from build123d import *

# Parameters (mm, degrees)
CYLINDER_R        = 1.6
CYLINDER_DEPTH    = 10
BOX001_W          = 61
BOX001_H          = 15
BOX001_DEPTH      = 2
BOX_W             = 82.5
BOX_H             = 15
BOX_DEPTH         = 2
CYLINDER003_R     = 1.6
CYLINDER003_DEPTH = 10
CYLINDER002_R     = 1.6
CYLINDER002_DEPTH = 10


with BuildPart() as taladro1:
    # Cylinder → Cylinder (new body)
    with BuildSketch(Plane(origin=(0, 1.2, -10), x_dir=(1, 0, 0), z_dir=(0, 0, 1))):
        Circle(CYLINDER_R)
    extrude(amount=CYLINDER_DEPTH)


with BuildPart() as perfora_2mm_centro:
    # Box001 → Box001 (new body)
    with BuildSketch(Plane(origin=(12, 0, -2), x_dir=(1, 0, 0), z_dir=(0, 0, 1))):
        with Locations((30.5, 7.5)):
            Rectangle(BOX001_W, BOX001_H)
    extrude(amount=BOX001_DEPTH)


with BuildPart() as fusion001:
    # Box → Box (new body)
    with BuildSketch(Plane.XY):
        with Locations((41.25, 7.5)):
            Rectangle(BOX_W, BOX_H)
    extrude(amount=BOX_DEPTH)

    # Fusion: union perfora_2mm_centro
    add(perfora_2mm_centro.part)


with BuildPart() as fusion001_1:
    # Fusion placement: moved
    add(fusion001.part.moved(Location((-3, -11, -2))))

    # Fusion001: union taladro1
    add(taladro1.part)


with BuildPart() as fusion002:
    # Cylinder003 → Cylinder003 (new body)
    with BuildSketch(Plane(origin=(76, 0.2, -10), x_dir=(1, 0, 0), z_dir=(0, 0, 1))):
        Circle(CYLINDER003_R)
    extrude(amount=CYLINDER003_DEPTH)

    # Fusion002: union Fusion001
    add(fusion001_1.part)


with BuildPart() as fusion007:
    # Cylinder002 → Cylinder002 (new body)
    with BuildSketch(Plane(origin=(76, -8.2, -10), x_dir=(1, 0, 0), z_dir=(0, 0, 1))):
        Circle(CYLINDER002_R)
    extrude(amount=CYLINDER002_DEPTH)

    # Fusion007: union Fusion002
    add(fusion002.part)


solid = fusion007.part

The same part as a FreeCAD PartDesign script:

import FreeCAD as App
import Part
import Sketcher

V = App.Vector

doc = App.newDocument("Part")
body = doc.addObject("PartDesign::Body", "Body")

sketch1 = doc.addObject("Sketcher::SketchObject", "Sketch")
body.addObject(sketch1)
sketch1.AttachmentSupport = (doc.XY_Plane, [""])
sketch1.MapMode = "FlatFace"
sketch1.AttachmentOffset = App.Placement(V(0, 0, -10), App.Rotation())
sketch1.addGeometry(Part.Circle(V(0, 1.2, 0), V(0, 0, 1), 1.6), False)
sketch1.addConstraint([
    Sketcher.Constraint("PointOnObject", 0, 3, -2),
    Sketcher.Constraint("Diameter", 0, 3.2),
    Sketcher.Constraint("DistanceY", -1, 1, 0, 3, 1.2),
])
pad1 = doc.addObject("PartDesign::Pad", "Pad")
body.addObject(pad1)
pad1.Profile = sketch1
pad1.Length = 10
body2 = doc.addObject("PartDesign::Body", "Body001")

sketch2 = doc.addObject("Sketcher::SketchObject", "Sketch001")
body2.addObject(sketch2)
sketch2.AttachmentSupport = (doc.getObject("XY_Plane001"), [""])
sketch2.MapMode = "FlatFace"
sketch2.AttachmentOffset = App.Placement(V(0, 0, -2), App.Rotation())
sketch2.addGeometry([
    Part.LineSegment(V(12, 15, 0), V(12, 0, 0)),
    Part.LineSegment(V(12, 0, 0), V(73, 0, 0)),
    Part.LineSegment(V(73, 0, 0), V(73, 15, 0)),
    Part.LineSegment(V(73, 15, 0), V(12, 15, 0)),
], False)
sketch2.addConstraint([
    Sketcher.Constraint("Coincident", 0, 2, 1, 1),
    Sketcher.Constraint("Coincident", 1, 2, 2, 1),
    Sketcher.Constraint("Coincident", 2, 2, 3, 1),
    Sketcher.Constraint("Coincident", 3, 2, 0, 1),
    Sketcher.Constraint("Vertical", 0),
    Sketcher.Constraint("Horizontal", 1),
    Sketcher.Constraint("Vertical", 2),
    Sketcher.Constraint("Horizontal", 3),
    Sketcher.Constraint("PointOnObject", 0, 2, -1),
    Sketcher.Constraint("DistanceX", 1, 1, 1, 2, 61.0),
    Sketcher.Constraint("DistanceY", 0, 2, 0, 1, 15.0),
    Sketcher.Constraint("DistanceX", -1, 1, 0, 2, 12.0),
])
pad2 = doc.addObject("PartDesign::Pad", "Pad001")
body2.addObject(pad2)
pad2.Profile = sketch2
pad2.Length = 2
body3 = doc.addObject("PartDesign::Body", "Body002")

sketch3 = doc.addObject("Sketcher::SketchObject", "Sketch002")
body3.addObject(sketch3)
sketch3.AttachmentSupport = (doc.getObject("XY_Plane002"), [""])
sketch3.MapMode = "FlatFace"
sketch3.addGeometry([
    Part.LineSegment(V(0, 15, 0), V(0, 0, 0)),
    Part.LineSegment(V(0, 0, 0), V(82, 0, 0)),
    Part.LineSegment(V(82, 0, 0), V(82, 15, 0)),
    Part.LineSegment(V(82, 15, 0), V(0, 15, 0)),
], False)
sketch3.addConstraint([
    Sketcher.Constraint("Coincident", 0, 2, 1, 1),
    Sketcher.Constraint("Coincident", 1, 2, 2, 1),
    Sketcher.Constraint("Coincident", 2, 2, 3, 1),
    Sketcher.Constraint("Coincident", 3, 2, 0, 1),
    Sketcher.Constraint("Vertical", 0),
    Sketcher.Constraint("Horizontal", 1),
    Sketcher.Constraint("Vertical", 2),
    Sketcher.Constraint("Horizontal", 3),
    Sketcher.Constraint("Coincident", 0, 2, -1, 1),
    Sketcher.Constraint("DistanceY", 0, 2, 0, 1, 15.0),
    Sketcher.Constraint("DistanceX", 1, 1, 1, 2, 82.5),
])
pad3 = doc.addObject("PartDesign::Pad", "Pad002")
body3.addObject(pad3)
pad3.Profile = sketch3
pad3.Length = 2
doc.recompute()

boolean = doc.addObject("PartDesign::Boolean", "Boolean")
body3.addObject(boolean)
boolean.Type = "Fuse"
boolean.addObjects([body2])
body4 = doc.addObject("PartDesign::Body", "Body003")
doc.recompute()

body3.Placement = App.Placement(V(-3, -11, -2), App.Rotation(V(0, 0, 1), 0))
boolean2 = doc.addObject("PartDesign::Boolean", "Boolean001")
body4.addObject(boolean2)
boolean2.Type = "Fuse"
boolean2.addObjects([body3])
doc.recompute()

boolean3 = doc.addObject("PartDesign::Boolean", "Boolean002")
body4.addObject(boolean3)
boolean3.Type = "Fuse"
boolean3.addObjects([body])
body5 = doc.addObject("PartDesign::Body", "Body004")

sketch4 = doc.addObject("Sketcher::SketchObject", "Sketch003")
body5.addObject(sketch4)
sketch4.AttachmentSupport = (doc.getObject("XY_Plane004"), [""])
sketch4.MapMode = "FlatFace"
sketch4.AttachmentOffset = App.Placement(V(0, 0, -10), App.Rotation())
sketch4.addGeometry(Part.Circle(V(76, 0.2, 0), V(0, 0, 1), 1.6), False)
sketch4.addConstraint([
    Sketcher.Constraint("Diameter", 0, 3.2),
    Sketcher.Constraint("DistanceX", -1, 1, 0, 3, 76.0),
    Sketcher.Constraint("DistanceY", -1, 1, 0, 3, 0.2),
])
pad4 = doc.addObject("PartDesign::Pad", "Pad003")
body5.addObject(pad4)
pad4.Profile = sketch4
pad4.Length = 10
doc.recompute()

boolean4 = doc.addObject("PartDesign::Boolean", "Boolean003")
body5.addObject(boolean4)
boolean4.Type = "Fuse"
boolean4.addObjects([body4])
body6 = doc.addObject("PartDesign::Body", "Body005")

sketch5 = doc.addObject("Sketcher::SketchObject", "Sketch004")
body6.addObject(sketch5)
sketch5.AttachmentSupport = (doc.getObject("XY_Plane005"), [""])
sketch5.MapMode = "FlatFace"
sketch5.AttachmentOffset = App.Placement(V(0, 0, -10), App.Rotation())
sketch5.addGeometry(Part.Circle(V(76, -8.2, 0), V(0, 0, 1), 1.6), False)
sketch5.addConstraint([
    Sketcher.Constraint("Diameter", 0, 3.2),
    Sketcher.Constraint("DistanceX", -1, 1, 0, 3, 76.0),
    Sketcher.Constraint("DistanceY", 0, 3, -1, 1, 8.2),
])
pad5 = doc.addObject("PartDesign::Pad", "Pad004")
body6.addObject(pad5)
pad5.Profile = sketch5
pad5.Length = 10
doc.recompute()

boolean5 = doc.addObject("PartDesign::Boolean", "Boolean004")
body6.addObject(boolean5)
boolean5.Type = "Fuse"
boolean5.addObjects([body5])

doc.recompute()
